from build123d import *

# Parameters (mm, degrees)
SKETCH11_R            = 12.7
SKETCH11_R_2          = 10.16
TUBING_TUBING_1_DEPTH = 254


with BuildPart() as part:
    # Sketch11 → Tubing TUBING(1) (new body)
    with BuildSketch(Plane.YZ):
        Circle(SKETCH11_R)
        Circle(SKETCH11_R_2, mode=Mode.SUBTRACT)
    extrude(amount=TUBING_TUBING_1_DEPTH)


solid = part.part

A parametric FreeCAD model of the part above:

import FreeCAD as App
import Part
import Sketcher

V = App.Vector
Q = App.Units.Quantity

doc = App.newDocument("Part")
body = doc.addObject("PartDesign::Body", "Body")

# Sketch on YZ plane
sketch1 = body.newObject("Sketcher::SketchObject", "Sketch")
sketch1.AttachmentSupport = (doc.getObject("YZ_Plane"), [""])
sketch1.MapMode = "FlatFace"
sketch1.addGeometry(Part.Circle(V(0, 0, 0), V(0, 0, 1), 13), False)
sketch1.addGeometry(Part.Circle(V(0, 0, 0), V(0, 0, 1), 10), False)
sketch1.addConstraint(Sketcher.Constraint("Coincident", 0, 3, -1, 1))
sketch1.addConstraint(Sketcher.Constraint("Coincident", 1, 3, -1, 1))
sketch1.addConstraint(Sketcher.Constraint("Diameter", 0, Q("1 in")))
sketch1.addConstraint(Sketcher.Constraint("Diameter", 1, Q("0.8 in")))
pad1 = body.newObject("PartDesign::Pad", "Pad")
pad1.Profile = sketch1
pad1.Length = Q("10 in")

doc.recompute()
